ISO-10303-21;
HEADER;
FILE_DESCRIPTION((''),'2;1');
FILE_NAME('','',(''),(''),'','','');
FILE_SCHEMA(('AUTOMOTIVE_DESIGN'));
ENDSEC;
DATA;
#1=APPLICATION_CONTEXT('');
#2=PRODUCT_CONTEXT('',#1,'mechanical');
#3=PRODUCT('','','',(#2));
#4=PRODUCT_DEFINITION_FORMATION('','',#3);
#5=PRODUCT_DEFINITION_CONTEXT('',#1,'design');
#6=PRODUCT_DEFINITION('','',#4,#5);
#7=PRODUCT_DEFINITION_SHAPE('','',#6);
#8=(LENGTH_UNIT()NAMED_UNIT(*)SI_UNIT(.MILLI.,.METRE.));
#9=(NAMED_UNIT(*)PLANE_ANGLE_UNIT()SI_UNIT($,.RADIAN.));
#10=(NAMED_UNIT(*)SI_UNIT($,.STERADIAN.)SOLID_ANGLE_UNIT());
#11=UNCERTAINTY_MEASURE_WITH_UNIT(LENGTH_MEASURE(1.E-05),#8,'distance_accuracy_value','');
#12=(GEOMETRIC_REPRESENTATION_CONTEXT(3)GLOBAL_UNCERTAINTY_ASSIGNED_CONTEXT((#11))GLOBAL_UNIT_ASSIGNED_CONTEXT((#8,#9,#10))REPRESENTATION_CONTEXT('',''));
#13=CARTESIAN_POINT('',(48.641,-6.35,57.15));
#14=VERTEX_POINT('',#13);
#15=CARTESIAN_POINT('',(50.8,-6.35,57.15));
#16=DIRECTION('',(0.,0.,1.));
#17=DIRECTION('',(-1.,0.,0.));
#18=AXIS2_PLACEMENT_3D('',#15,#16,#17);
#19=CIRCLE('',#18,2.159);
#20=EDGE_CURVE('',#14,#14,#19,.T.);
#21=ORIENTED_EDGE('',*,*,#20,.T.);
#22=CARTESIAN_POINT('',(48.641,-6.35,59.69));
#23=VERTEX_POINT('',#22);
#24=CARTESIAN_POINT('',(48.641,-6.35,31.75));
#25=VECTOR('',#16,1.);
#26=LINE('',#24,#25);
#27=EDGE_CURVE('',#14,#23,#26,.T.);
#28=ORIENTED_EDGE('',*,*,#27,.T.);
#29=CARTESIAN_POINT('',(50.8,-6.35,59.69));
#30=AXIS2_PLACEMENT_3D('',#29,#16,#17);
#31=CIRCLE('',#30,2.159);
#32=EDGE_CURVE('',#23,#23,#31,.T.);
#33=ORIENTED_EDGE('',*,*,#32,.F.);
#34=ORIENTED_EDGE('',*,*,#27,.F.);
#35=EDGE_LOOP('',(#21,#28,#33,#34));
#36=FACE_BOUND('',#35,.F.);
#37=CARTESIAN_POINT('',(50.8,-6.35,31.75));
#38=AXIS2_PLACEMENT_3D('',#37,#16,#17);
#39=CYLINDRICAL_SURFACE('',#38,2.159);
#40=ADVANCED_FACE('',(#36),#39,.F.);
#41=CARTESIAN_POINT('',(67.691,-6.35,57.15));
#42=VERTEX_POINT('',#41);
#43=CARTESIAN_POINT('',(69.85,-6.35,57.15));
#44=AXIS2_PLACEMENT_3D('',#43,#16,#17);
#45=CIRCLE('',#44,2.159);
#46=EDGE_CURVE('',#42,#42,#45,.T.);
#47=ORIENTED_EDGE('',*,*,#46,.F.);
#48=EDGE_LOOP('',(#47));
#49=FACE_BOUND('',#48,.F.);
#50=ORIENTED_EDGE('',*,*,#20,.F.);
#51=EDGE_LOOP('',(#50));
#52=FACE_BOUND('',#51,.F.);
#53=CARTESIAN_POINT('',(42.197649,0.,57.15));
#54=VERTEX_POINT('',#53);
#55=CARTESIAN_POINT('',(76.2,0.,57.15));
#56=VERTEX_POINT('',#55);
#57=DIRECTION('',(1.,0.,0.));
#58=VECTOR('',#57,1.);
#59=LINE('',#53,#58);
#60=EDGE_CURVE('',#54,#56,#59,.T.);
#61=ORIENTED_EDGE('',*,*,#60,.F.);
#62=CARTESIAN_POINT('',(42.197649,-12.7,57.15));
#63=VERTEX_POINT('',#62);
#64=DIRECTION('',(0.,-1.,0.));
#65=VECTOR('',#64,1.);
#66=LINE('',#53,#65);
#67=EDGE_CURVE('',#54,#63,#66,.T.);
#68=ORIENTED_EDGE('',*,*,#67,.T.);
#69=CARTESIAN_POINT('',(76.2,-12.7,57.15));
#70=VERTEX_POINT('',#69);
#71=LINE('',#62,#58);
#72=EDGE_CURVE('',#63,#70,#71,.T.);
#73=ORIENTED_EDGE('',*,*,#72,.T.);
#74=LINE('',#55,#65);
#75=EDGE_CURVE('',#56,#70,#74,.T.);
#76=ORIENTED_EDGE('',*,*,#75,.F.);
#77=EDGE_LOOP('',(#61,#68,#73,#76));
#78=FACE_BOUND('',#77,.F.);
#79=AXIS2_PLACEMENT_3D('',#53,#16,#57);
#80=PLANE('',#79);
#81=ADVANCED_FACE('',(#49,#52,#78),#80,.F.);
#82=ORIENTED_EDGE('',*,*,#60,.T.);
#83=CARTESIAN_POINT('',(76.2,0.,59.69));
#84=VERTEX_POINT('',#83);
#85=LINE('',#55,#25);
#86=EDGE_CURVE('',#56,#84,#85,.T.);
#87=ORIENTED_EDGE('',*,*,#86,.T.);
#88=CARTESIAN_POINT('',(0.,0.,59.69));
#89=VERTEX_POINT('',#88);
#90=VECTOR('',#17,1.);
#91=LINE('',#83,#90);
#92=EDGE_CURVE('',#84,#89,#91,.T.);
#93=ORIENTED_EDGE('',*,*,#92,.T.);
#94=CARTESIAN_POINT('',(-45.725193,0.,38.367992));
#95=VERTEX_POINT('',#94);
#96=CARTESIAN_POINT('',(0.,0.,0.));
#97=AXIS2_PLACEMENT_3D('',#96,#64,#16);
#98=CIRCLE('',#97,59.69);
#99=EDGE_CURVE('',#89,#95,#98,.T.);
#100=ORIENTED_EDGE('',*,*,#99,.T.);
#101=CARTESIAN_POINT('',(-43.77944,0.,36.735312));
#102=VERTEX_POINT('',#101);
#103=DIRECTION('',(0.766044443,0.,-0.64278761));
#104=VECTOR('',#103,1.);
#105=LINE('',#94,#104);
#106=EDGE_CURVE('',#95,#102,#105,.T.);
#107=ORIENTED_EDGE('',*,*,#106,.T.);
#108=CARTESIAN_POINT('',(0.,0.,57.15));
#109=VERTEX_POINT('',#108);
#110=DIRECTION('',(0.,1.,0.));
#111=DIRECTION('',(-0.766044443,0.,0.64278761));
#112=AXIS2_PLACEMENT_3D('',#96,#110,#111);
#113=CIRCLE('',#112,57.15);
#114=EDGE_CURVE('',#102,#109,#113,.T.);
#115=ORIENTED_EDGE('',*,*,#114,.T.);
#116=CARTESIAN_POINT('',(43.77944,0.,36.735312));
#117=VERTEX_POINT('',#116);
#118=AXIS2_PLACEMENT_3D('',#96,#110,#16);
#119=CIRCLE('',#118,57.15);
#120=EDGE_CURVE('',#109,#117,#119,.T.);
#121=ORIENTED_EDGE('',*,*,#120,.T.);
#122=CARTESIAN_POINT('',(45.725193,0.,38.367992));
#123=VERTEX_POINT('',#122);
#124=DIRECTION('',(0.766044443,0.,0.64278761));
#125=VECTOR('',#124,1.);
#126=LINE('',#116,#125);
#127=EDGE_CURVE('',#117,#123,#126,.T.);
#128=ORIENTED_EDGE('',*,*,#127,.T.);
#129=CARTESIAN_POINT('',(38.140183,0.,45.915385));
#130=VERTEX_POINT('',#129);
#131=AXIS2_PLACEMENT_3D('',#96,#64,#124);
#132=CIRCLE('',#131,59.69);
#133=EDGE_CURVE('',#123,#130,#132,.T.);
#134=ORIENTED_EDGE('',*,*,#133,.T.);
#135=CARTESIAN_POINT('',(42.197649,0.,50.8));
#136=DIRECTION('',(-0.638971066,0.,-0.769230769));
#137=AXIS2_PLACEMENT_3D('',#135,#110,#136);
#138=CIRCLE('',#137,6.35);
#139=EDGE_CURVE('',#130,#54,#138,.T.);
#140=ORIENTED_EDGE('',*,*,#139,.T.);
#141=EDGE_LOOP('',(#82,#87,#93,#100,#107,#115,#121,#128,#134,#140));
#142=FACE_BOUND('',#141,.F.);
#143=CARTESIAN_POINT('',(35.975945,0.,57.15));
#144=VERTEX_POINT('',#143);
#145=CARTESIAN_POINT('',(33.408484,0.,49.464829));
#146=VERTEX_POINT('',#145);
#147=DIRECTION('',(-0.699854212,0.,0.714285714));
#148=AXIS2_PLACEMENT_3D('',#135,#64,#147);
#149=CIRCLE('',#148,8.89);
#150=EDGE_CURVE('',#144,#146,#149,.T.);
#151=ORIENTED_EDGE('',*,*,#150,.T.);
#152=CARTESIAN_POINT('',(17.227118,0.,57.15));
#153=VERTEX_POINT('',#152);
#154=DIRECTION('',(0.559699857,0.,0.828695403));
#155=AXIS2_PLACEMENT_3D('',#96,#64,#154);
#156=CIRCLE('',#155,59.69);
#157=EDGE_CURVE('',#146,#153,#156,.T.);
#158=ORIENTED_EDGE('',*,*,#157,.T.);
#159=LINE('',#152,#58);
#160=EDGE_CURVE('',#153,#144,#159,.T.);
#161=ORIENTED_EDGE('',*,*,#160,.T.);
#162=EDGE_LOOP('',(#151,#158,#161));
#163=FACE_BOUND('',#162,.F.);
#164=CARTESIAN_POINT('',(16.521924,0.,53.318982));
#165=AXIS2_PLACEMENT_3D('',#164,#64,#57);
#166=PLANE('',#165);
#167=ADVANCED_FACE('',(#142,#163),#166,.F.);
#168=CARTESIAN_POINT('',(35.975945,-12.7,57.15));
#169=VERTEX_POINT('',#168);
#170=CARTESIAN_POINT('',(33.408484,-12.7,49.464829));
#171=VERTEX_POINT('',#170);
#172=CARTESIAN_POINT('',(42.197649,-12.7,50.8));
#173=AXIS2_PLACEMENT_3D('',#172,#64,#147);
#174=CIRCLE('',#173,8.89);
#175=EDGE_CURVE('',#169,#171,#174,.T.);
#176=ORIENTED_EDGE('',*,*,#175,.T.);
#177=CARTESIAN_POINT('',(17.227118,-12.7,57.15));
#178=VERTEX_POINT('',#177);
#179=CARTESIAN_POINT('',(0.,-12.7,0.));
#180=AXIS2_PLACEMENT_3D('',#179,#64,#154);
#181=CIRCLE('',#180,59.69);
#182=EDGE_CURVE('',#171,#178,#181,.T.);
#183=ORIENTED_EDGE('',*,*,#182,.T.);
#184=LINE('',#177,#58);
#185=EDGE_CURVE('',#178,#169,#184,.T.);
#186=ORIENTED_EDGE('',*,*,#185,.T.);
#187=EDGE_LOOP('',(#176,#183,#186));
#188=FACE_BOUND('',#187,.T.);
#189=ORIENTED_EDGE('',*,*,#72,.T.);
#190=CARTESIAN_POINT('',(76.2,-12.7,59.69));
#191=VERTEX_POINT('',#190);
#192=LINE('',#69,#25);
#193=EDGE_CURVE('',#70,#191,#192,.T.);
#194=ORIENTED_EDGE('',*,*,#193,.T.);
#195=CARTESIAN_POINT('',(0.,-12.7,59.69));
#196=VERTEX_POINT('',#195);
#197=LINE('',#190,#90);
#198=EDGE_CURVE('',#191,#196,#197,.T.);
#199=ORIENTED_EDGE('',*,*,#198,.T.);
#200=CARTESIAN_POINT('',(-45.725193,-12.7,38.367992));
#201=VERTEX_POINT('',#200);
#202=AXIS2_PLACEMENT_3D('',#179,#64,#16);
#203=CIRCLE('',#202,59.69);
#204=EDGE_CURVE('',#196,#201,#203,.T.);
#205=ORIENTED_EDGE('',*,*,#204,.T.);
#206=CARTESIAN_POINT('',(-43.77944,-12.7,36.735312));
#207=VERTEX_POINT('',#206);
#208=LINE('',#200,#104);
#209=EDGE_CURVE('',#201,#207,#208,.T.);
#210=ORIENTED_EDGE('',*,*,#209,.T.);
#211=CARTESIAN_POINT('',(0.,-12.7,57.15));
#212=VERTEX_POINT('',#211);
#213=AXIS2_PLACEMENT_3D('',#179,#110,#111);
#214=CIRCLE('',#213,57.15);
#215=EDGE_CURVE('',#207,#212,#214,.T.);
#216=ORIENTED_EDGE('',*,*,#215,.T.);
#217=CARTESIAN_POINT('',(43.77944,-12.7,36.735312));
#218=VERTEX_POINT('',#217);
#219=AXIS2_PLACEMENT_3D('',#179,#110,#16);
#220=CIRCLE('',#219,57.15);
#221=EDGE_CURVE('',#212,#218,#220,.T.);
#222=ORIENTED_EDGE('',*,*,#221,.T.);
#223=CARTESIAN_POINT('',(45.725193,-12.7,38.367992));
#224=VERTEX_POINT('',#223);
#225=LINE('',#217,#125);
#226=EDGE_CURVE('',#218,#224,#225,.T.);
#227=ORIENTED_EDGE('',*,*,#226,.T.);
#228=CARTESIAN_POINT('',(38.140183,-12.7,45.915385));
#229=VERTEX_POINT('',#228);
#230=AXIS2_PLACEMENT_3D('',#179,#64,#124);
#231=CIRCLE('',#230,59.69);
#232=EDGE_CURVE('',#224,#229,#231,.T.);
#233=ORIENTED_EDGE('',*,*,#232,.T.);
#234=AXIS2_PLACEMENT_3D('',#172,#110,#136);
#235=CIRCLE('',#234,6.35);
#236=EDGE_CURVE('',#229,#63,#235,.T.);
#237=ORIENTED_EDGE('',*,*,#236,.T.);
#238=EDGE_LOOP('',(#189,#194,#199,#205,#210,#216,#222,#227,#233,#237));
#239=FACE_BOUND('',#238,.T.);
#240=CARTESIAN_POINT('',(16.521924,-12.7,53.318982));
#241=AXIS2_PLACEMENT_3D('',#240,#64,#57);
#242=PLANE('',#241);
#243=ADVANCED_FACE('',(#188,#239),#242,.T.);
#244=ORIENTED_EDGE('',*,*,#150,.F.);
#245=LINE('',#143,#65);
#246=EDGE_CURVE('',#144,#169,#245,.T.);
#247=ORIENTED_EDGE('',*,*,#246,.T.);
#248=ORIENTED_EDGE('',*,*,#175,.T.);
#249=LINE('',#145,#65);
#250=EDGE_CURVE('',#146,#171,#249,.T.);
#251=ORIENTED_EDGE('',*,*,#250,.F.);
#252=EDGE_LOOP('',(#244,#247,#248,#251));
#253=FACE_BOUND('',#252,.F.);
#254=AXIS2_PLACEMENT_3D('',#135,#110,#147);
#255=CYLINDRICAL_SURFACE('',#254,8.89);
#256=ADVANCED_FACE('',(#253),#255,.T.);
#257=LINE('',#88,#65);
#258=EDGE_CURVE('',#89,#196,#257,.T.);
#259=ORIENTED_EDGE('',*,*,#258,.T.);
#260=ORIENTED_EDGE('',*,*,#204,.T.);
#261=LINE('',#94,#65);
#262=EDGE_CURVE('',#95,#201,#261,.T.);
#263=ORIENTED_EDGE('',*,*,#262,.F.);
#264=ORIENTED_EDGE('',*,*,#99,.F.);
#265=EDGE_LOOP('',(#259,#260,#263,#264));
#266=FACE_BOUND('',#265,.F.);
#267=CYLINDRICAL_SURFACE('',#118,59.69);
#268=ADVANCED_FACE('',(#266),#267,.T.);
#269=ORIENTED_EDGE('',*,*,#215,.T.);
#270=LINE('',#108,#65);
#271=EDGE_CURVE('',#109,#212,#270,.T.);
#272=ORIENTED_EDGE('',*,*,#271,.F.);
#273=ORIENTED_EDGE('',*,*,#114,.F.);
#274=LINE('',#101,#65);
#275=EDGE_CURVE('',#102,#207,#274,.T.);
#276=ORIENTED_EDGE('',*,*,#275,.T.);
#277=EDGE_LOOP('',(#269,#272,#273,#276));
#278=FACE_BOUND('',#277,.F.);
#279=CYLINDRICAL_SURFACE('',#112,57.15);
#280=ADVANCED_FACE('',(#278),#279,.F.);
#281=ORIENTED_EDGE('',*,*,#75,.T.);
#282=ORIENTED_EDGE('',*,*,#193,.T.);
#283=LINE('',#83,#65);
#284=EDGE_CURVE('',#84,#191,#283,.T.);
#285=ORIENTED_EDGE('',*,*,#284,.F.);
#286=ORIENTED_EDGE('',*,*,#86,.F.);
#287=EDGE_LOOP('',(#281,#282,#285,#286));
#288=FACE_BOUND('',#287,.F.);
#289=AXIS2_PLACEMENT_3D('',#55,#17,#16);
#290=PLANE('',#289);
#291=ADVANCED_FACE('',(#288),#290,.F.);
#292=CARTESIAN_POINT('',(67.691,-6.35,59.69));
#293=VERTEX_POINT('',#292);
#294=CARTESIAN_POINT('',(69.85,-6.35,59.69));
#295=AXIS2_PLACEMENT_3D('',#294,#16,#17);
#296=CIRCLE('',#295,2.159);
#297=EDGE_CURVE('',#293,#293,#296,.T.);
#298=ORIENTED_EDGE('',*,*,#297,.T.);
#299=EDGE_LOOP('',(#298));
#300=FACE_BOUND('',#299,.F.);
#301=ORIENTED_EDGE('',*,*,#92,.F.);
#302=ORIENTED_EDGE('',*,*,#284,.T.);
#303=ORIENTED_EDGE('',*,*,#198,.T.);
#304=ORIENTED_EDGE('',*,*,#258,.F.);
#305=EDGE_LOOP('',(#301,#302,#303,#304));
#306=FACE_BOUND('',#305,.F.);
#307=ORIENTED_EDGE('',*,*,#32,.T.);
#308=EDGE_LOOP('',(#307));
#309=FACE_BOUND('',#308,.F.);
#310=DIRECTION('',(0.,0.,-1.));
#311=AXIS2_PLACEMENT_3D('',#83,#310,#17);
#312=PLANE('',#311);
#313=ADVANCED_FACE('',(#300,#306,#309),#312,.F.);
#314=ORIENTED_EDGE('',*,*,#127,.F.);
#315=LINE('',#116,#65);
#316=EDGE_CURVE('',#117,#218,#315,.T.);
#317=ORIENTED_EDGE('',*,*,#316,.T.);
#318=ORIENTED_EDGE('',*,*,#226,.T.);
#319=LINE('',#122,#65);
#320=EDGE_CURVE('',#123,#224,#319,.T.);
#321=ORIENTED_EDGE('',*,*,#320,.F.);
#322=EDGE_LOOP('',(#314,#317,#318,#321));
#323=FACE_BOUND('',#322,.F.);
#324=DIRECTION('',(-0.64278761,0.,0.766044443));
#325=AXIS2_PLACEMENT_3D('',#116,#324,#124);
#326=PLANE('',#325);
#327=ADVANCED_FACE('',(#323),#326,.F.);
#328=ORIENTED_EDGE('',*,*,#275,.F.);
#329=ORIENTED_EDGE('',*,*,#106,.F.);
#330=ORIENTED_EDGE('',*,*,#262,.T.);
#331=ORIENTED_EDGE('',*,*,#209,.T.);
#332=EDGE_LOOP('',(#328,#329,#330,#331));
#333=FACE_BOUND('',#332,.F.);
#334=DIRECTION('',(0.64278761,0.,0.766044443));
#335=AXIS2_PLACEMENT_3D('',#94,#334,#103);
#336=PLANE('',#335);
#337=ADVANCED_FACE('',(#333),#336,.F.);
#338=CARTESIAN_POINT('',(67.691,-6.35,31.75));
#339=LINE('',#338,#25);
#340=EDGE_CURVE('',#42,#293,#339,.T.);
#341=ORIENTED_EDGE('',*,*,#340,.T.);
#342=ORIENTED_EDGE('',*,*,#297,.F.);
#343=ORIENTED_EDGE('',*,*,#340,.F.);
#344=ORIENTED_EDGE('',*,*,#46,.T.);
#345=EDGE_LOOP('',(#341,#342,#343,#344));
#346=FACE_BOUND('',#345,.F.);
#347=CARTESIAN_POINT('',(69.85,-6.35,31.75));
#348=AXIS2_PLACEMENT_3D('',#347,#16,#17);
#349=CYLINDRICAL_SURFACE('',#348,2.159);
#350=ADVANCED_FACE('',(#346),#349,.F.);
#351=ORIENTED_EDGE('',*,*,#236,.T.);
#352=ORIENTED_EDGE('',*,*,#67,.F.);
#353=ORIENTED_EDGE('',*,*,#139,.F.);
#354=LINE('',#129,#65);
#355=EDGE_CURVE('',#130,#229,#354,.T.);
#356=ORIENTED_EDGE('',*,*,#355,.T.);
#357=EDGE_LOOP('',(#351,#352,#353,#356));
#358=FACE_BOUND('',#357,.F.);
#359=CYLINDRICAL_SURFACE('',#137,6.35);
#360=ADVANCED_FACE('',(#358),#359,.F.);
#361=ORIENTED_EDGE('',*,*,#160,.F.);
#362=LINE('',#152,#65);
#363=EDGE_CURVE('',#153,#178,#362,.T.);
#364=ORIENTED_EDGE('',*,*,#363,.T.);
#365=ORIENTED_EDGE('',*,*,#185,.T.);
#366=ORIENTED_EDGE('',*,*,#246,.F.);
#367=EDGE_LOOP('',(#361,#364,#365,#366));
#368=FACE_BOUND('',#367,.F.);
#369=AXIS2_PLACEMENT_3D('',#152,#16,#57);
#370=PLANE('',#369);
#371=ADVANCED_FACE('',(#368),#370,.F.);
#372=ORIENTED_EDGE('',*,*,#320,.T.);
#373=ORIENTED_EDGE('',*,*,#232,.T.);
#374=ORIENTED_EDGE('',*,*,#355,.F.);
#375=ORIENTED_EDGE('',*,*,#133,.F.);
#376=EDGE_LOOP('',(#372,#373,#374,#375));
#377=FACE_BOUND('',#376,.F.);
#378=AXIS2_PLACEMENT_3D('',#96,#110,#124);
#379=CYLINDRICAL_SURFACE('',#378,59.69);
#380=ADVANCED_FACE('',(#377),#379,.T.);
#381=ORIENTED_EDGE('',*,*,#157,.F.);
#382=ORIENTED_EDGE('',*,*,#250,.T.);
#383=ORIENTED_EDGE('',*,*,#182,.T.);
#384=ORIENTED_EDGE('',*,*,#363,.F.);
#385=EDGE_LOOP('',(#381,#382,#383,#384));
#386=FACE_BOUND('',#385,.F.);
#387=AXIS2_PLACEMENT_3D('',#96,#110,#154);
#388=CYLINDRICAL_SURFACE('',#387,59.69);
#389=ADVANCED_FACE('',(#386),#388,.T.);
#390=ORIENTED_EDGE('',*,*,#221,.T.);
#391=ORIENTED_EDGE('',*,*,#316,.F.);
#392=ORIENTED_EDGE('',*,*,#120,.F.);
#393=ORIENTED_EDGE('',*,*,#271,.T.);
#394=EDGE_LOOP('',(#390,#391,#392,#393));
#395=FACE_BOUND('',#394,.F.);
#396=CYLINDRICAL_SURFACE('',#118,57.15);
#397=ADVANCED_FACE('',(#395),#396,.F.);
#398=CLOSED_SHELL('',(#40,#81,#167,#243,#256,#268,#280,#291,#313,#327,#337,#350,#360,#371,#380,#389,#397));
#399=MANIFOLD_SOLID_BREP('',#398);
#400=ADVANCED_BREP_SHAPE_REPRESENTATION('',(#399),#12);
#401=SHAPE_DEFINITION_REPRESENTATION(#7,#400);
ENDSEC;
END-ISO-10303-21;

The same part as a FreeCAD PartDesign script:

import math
import FreeCAD as App
import Part
import Sketcher
Q = App.Units.Quantity

doc = App.newDocument("Part")
body = doc.addObject("PartDesign::Body", "Body")

# Sketch on XZ plane
sketch1 = doc.addObject("Sketcher::SketchObject", "Sketch")
body.addObject(sketch1)
sketch1.AttachmentSupport = (doc.XZ_Plane, [""])
sketch1.MapMode = "FlatFace"
sketch1.addGeometry(Part.ArcOfCircle(Part.Circle(App.Vector(0, 0, 0), App.Vector(0, 0, 1), 57.15), math.radians(40), math.radians(90)), False)
sketch1.addGeometry(Part.LineSegment(App.Vector(43.77944, 36.735312, 0), App.Vector(45.725193, 38.367992, 0)), False)
sketch1.addGeometry(Part.ArcOfCircle(Part.Circle(App.Vector(0, 0, 0), App.Vector(0, 0, 1), 59.69), math.radians(40), math.radians(50.284863)), False)
sketch1.addGeometry(Part.ArcOfCircle(Part.Circle(App.Vector(42.197649, 50.8, 0), App.Vector(0, 0, 1), 6.35), math.radians(90), math.radians(230.284863)), False)
sketch1.addGeometry(Part.LineSegment(App.Vector(42.197649, 57.15, 0), App.Vector(76.2, 57.15, 0)), False)
sketch1.addGeometry(Part.LineSegment(App.Vector(76.2, 57.15, 0), App.Vector(76.2, 59.69, 0)), False)
sketch1.addGeometry(Part.LineSegment(App.Vector(76.2, 59.69, 0), App.Vector(0, 59.69, 0)), False)
sketch1.addGeometry(Part.ArcOfCircle(Part.Circle(App.Vector(0, 0, 0), App.Vector(0, 0, 1), 59.69), math.radians(90), math.radians(140)), False)
sketch1.addGeometry(Part.LineSegment(App.Vector(-45.725193, 38.367992, 0), App.Vector(-43.77944, 36.735312, 0)), False)
sketch1.addGeometry(Part.ArcOfCircle(Part.Circle(App.Vector(0, 0, 0), App.Vector(0, 0, 1), 57.15), math.radians(90), math.radians(140)), False)
sketch1.addGeometry(Part.ArcOfCircle(Part.Circle(App.Vector(0, 0, 0), App.Vector(0, 0, 1), 59.69), math.radians(55.964957), math.radians(73.225256)), False)
sketch1.addGeometry(Part.LineSegment(App.Vector(17.227118, 57.15, 0), App.Vector(35.975945, 57.15, 0)), False)
sketch1.addGeometry(Part.ArcOfCircle(Part.Circle(App.Vector(42.197649, 50.8, 0), App.Vector(0, 0, 1), 8.89), math.radians(134.415309), math.radians(188.637822)), False)
sketch1.addConstraint(Sketcher.Constraint("Coincident", 0, 1, 1, 1))
sketch1.addConstraint(Sketcher.Constraint("Coincident", 1, 2, 2, 1))
sketch1.addConstraint(Sketcher.Constraint("Tangent", 2, 2, 3, 2))
sketch1.addConstraint(Sketcher.Constraint("Tangent", 3, 1, 4, 1))
sketch1.addConstraint(Sketcher.Constraint("Coincident", 4, 2, 5, 1))
sketch1.addConstraint(Sketcher.Constraint("Coincident", 5, 2, 6, 1))
sketch1.addConstraint(Sketcher.Constraint("Tangent", 6, 2, 7, 1))
sketch1.addConstraint(Sketcher.Constraint("Coincident", 7, 2, 8, 1))
sketch1.addConstraint(Sketcher.Constraint("Coincident", 8, 2, 9, 2))
sketch1.addConstraint(Sketcher.Constraint("Tangent", 9, 1, 0, 2))
sketch1.addConstraint(Sketcher.Constraint("Coincident", 10, 2, 11, 1))
sketch1.addConstraint(Sketcher.Constraint("Coincident", 11, 2, 12, 1))
sketch1.addConstraint(Sketcher.Constraint("Coincident", 12, 2, 10, 1))
sketch1.addConstraint(Sketcher.Constraint("Horizontal", 4))
sketch1.addConstraint(Sketcher.Constraint("Vertical", 5))
sketch1.addConstraint(Sketcher.Constraint("Horizontal", 6))
sketch1.addConstraint(Sketcher.Constraint("Horizontal", 11))
sketch1.addConstraint(Sketcher.Constraint("Coincident", 0, 3, -1, 1))
sketch1.addConstraint(Sketcher.Constraint("Coincident", 2, 3, -1, 1))
sketch1.addConstraint(Sketcher.Constraint("Coincident", 7, 3, -1, 1))
sketch1.addConstraint(Sketcher.Constraint("Coincident", 10, 3, -1, 1))
sketch1.addConstraint(Sketcher.Constraint("Coincident", 12, 3, 3, 3))
sketch1.addConstraint(Sketcher.Constraint("Equal", 2, 7))
sketch1.addConstraint(Sketcher.Constraint("Equal", 0, 9))
sketch1.addConstraint(Sketcher.Constraint("Equal", 7, 10))
sketch1.addConstraint(Sketcher.Constraint("PointOnObject", 9, 1, -2))
sketch1.addConstraint(Sketcher.Constraint("Horizontal", 1, 2, 7, 2))
sketch1.addConstraint(Sketcher.Constraint("Horizontal", 0, 1, 8, 2))
sketch1.addConstraint(Sketcher.Constraint("Horizontal", 4, 2, 9, 1))
sketch1.addConstraint(Sketcher.Constraint("Horizontal", 9, 1, 10, 2))
sketch1.addConstraint(Sketcher.Constraint("DistanceX", 6, 2, 6, 1, Q("3 in")))
sketch1.addConstraint(Sketcher.Constraint("Radius", 0, Q("2.25 in")))
sketch1.addConstraint(Sketcher.Constraint("Radius", 2, Q("2.35 in")))
sketch1.addConstraint(Sketcher.Constraint("Radius", 3, Q("0.25 in")))
sketch1.addConstraint(Sketcher.Constraint("Radius", 12, Q("0.35 in")))
sketch1.addConstraint(Sketcher.Constraint("Angle", 1, Q("40 deg")))
sketch1.addConstraint(Sketcher.Constraint("DistanceX", -1, 1, 0, 1, Q("1.7236 in")))
pad1 = doc.addObject("PartDesign::Pad", "Pad")
body.addObject(pad1)
pad1.Profile = sketch1
pad1.Length = Q("0.5 in")

# Sketch on XY plane
sketch2 = doc.addObject("Sketcher::SketchObject", "Sketch001")
body.addObject(sketch2)
sketch2.AttachmentSupport = (doc.XY_Plane, [""])
sketch2.MapMode = "FlatFace"
sketch2.AttachmentOffset = App.Placement(App.Vector(0, 0, 2.25 * 25.4), App.Rotation())
sketch2.addGeometry(Part.Circle(App.Vector(69.85, -6.35, 0), App.Vector(0, 0, 1), 2.159), False)
sketch2.addGeometry(Part.Circle(App.Vector(50.8, -6.35, 0), App.Vector(0, 0, 1), 2.159), False)
sketch2.addConstraint(Sketcher.Constraint("Equal", 0, 1))
sketch2.addConstraint(Sketcher.Constraint("Horizontal", 0, 3, 1, 3))
sketch2.addConstraint(Sketcher.Constraint("Diameter", 0, Q("0.17 in")))
sketch2.addConstraint(Sketcher.Constraint("DistanceX", -1, 1, 1, 3, Q("2 in")))
sketch2.addConstraint(Sketcher.Constraint("DistanceX", -1, 1, 0, 3, Q("2.75 in")))
sketch2.addConstraint(Sketcher.Constraint("DistanceY", 0, 3, -1, 1, Q("0.25 in")))
doc.recompute()
hole = doc.addObject("PartDesign::Hole", "Hole")
body.addObject(hole)
hole.Profile = sketch2
hole.ThreadType = "None"
hole.Diameter = Q("0.17 in")
hole.DepthType = "Dimension"
hole.Depth = Q("1 in")
hole.DrillPoint = "Angled"
hole.DrillPointAngle = 118
hole.Reversed = True

doc.recompute()
